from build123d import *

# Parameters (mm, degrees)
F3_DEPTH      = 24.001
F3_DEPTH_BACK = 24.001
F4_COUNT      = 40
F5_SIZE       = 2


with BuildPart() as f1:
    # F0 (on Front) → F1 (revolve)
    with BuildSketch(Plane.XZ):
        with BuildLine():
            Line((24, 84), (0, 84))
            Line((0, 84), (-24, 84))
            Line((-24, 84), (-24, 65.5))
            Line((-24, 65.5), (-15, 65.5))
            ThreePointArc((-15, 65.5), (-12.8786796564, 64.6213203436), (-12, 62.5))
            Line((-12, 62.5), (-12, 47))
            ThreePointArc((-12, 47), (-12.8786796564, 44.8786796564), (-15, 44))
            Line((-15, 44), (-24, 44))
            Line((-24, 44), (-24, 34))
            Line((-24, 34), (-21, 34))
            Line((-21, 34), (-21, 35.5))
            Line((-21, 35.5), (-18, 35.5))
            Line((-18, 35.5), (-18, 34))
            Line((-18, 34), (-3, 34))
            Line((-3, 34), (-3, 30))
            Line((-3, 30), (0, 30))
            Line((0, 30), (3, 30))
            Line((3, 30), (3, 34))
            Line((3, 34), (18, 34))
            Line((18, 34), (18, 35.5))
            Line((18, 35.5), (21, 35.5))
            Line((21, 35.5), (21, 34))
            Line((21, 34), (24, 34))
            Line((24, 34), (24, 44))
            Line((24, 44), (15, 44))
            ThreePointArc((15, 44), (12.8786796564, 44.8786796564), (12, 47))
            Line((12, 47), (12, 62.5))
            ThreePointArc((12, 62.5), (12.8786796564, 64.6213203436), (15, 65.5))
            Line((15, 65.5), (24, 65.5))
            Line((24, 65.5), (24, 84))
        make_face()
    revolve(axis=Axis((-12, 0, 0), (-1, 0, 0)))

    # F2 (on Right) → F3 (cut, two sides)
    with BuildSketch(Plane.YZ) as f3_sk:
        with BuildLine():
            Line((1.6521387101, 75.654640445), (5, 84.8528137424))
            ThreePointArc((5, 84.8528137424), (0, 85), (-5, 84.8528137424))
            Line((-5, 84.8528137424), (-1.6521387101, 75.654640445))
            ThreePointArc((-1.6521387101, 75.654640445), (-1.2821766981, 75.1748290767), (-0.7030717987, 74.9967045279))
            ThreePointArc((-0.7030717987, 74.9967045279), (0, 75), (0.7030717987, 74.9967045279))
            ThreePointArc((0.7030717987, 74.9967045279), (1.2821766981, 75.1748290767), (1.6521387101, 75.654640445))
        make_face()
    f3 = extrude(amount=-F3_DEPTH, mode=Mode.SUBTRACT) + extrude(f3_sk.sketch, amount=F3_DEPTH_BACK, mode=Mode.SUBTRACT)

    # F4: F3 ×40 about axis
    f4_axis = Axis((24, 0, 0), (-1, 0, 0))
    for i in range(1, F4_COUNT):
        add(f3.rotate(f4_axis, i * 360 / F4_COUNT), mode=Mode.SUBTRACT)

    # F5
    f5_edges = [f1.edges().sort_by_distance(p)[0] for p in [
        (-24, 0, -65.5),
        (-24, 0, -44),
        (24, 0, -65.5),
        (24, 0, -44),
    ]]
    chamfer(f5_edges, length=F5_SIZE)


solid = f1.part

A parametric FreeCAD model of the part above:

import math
import FreeCAD as App
import Part
import Sketcher
Q = App.Units.Quantity


def edges_at(feature, points):
    """Names of the edges that pass closest to the given points."""
    edges = feature.Shape.Edges
    near = lambda p: min(range(len(edges)), key=lambda i: edges[i].distToShape(Part.Vertex(*p))[0])
    return sorted({f"Edge{near(p) + 1}" for p in points})

doc = App.newDocument("Part")
body = doc.addObject("PartDesign::Body", "Body")

sketch1 = doc.addObject("Sketcher::SketchObject", "Sketch")
body.addObject(sketch1)
sketch1.AttachmentSupport = (doc.XZ_Plane, [""])
sketch1.MapMode = "FlatFace"
sketch1.addGeometry(Part.LineSegment(App.Vector(24, 84, 0), App.Vector(-24, 84, 0)), False)
sketch1.addGeometry(Part.LineSegment(App.Vector(-24, 84, 0), App.Vector(-24, 65.5, 0)), False)
sketch1.addGeometry(Part.LineSegment(App.Vector(-24, 65.5, 0), App.Vector(-15, 65.5, 0)), False)
sketch1.addGeometry(Part.ArcOfCircle(Part.Circle(App.Vector(-15, 62.5, 0), App.Vector(0, 0, 1), 3), math.radians(0), math.radians(90)), False)
sketch1.addGeometry(Part.LineSegment(App.Vector(-12, 62.5, 0), App.Vector(-12, 47, 0)), False)
sketch1.addGeometry(Part.ArcOfCircle(Part.Circle(App.Vector(-15, 47, 0), App.Vector(0, 0, 1), 3), math.radians(-90), math.radians(0)), False)
sketch1.addGeometry(Part.LineSegment(App.Vector(-15, 44, 0), App.Vector(-24, 44, 0)), False)
sketch1.addGeometry(Part.LineSegment(App.Vector(-24, 44, 0), App.Vector(-24, 34, 0)), False)
sketch1.addGeometry(Part.LineSegment(App.Vector(-24, 34, 0), App.Vector(-21, 34, 0)), False)
sketch1.addGeometry(Part.LineSegment(App.Vector(-21, 34, 0), App.Vector(-21, 35.5, 0)), False)
sketch1.addGeometry(Part.LineSegment(App.Vector(-21, 35.5, 0), App.Vector(-18, 35.5, 0)), False)
sketch1.addGeometry(Part.LineSegment(App.Vector(-18, 35.5, 0), App.Vector(-18, 34, 0)), False)
sketch1.addGeometry(Part.LineSegment(App.Vector(-18, 34, 0), App.Vector(-3, 34, 0)), False)
sketch1.addGeometry(Part.LineSegment(App.Vector(-3, 34, 0), App.Vector(-3, 30, 0)), False)
sketch1.addGeometry(Part.LineSegment(App.Vector(-3, 30, 0), App.Vector(3, 30, 0)), False)
sketch1.addGeometry(Part.LineSegment(App.Vector(3, 30, 0), App.Vector(3, 34, 0)), False)
sketch1.addGeometry(Part.LineSegment(App.Vector(3, 34, 0), App.Vector(18, 34, 0)), False)
sketch1.addGeometry(Part.LineSegment(App.Vector(18, 34, 0), App.Vector(18, 35.5, 0)), False)
sketch1.addGeometry(Part.LineSegment(App.Vector(18, 35.5, 0), App.Vector(21, 35.5, 0)), False)
sketch1.addGeometry(Part.LineSegment(App.Vector(21, 35.5, 0), App.Vector(21, 34, 0)), False)
sketch1.addGeometry(Part.LineSegment(App.Vector(21, 34, 0), App.Vector(24, 34, 0)), False)
sketch1.addGeometry(Part.LineSegment(App.Vector(24, 34, 0), App.Vector(24, 44, 0)), False)
sketch1.addGeometry(Part.LineSegment(App.Vector(24, 44, 0), App.Vector(15, 44, 0)), False)
sketch1.addGeometry(Part.ArcOfCircle(Part.Circle(App.Vector(15, 47, 0), App.Vector(0, 0, 1), 3), math.radians(180), math.radians(270)), False)
sketch1.addGeometry(Part.LineSegment(App.Vector(12, 47, 0), App.Vector(12, 62.5, 0)), False)
sketch1.addGeometry(Part.ArcOfCircle(Part.Circle(App.Vector(15, 62.5, 0), App.Vector(0, 0, 1), 3), math.radians(90), math.radians(180)), False)
sketch1.addGeometry(Part.LineSegment(App.Vector(15, 65.5, 0), App.Vector(24, 65.5, 0)), False)
sketch1.addGeometry(Part.LineSegment(App.Vector(24, 65.5, 0), App.Vector(24, 84, 0)), False)
sketch1.addConstraint(Sketcher.Constraint("Coincident", 0, 2, 1, 1))
sketch1.addConstraint(Sketcher.Constraint("Coincident", 1, 2, 2, 1))
sketch1.addConstraint(Sketcher.Constraint("Tangent", 2, 2, 3, 2))
sketch1.addConstraint(Sketcher.Constraint("Tangent", 3, 1, 4, 1))
sketch1.addConstraint(Sketcher.Constraint("Tangent", 4, 2, 5, 2))
sketch1.addConstraint(Sketcher.Constraint("Tangent", 5, 1, 6, 1))
sketch1.addConstraint(Sketcher.Constraint("Coincident", 6, 2, 7, 1))
sketch1.addConstraint(Sketcher.Constraint("Coincident", 7, 2, 8, 1))
sketch1.addConstraint(Sketcher.Constraint("Coincident", 8, 2, 9, 1))
sketch1.addConstraint(Sketcher.Constraint("Coincident", 9, 2, 10, 1))
sketch1.addConstraint(Sketcher.Constraint("Coincident", 10, 2, 11, 1))
sketch1.addConstraint(Sketcher.Constraint("Coincident", 11, 2, 12, 1))
sketch1.addConstraint(Sketcher.Constraint("Coincident", 12, 2, 13, 1))
sketch1.addConstraint(Sketcher.Constraint("Coincident", 13, 2, 14, 1))
sketch1.addConstraint(Sketcher.Constraint("Coincident", 14, 2, 15, 1))
sketch1.addConstraint(Sketcher.Constraint("Coincident", 15, 2, 16, 1))
sketch1.addConstraint(Sketcher.Constraint("Coincident", 16, 2, 17, 1))
sketch1.addConstraint(Sketcher.Constraint("Coincident", 17, 2, 18, 1))
sketch1.addConstraint(Sketcher.Constraint("Coincident", 18, 2, 19, 1))
sketch1.addConstraint(Sketcher.Constraint("Coincident", 19, 2, 20, 1))
sketch1.addConstraint(Sketcher.Constraint("Coincident", 20, 2, 21, 1))
sketch1.addConstraint(Sketcher.Constraint("Coincident", 21, 2, 22, 1))
sketch1.addConstraint(Sketcher.Constraint("Tangent", 22, 2, 23, 2))
sketch1.addConstraint(Sketcher.Constraint("Tangent", 23, 1, 24, 1))
sketch1.addConstraint(Sketcher.Constraint("Tangent", 24, 2, 25, 2))
sketch1.addConstraint(Sketcher.Constraint("Tangent", 25, 1, 26, 1))
sketch1.addConstraint(Sketcher.Constraint("Coincident", 26, 2, 27, 1))
sketch1.addConstraint(Sketcher.Constraint("Coincident", 27, 2, 0, 1))
sketch1.addConstraint(Sketcher.Constraint("Horizontal", 0))
sketch1.addConstraint(Sketcher.Constraint("Vertical", 1))
sketch1.addConstraint(Sketcher.Constraint("Horizontal", 2))
sketch1.addConstraint(Sketcher.Constraint("Vertical", 4))
sketch1.addConstraint(Sketcher.Constraint("Horizontal", 6))
sketch1.addConstraint(Sketcher.Constraint("Vertical", 7))
sketch1.addConstraint(Sketcher.Constraint("Horizontal", 8))
sketch1.addConstraint(Sketcher.Constraint("Vertical", 9))
sketch1.addConstraint(Sketcher.Constraint("Horizontal", 10))
sketch1.addConstraint(Sketcher.Constraint("Vertical", 11))
sketch1.addConstraint(Sketcher.Constraint("Horizontal", 12))
sketch1.addConstraint(Sketcher.Constraint("Vertical", 13))
sketch1.addConstraint(Sketcher.Constraint("Horizontal", 14))
sketch1.addConstraint(Sketcher.Constraint("Vertical", 15))
sketch1.addConstraint(Sketcher.Constraint("Horizontal", 16))
sketch1.addConstraint(Sketcher.Constraint("Vertical", 17))
sketch1.addConstraint(Sketcher.Constraint("Horizontal", 18))
sketch1.addConstraint(Sketcher.Constraint("Vertical", 19))
sketch1.addConstraint(Sketcher.Constraint("Horizontal", 20))
sketch1.addConstraint(Sketcher.Constraint("Vertical", 21))
sketch1.addConstraint(Sketcher.Constraint("Horizontal", 22))
sketch1.addConstraint(Sketcher.Constraint("Vertical", 24))
sketch1.addConstraint(Sketcher.Constraint("Horizontal", 26))
sketch1.addConstraint(Sketcher.Constraint("Vertical", 27))
sketch1.addConstraint(Sketcher.Constraint("Equal", 3, 5))
sketch1.addConstraint(Sketcher.Constraint("Equal", 5, 23))
sketch1.addConstraint(Sketcher.Constraint("Equal", 23, 25))
sketch1.addConstraint(Sketcher.Constraint("Symmetric", 5, 3, 23, 3, -2))
sketch1.addConstraint(Sketcher.Constraint("Symmetric", 12, 2, 15, 2, -2))
sketch1.addConstraint(Sketcher.Constraint("Symmetric", 10, 2, 17, 2, -2))
sketch1.addConstraint(Sketcher.Constraint("Symmetric", 8, 2, 19, 2, -2))
sketch1.addConstraint(Sketcher.Constraint("Symmetric", 1, 2, 26, 2, -2))
sketch1.addConstraint(Sketcher.Constraint("Horizontal", 8, 2, 11, 2))
sketch1.addConstraint(Sketcher.Constraint("Vertical", 1, 2, 6, 2))
sketch1.addConstraint(Sketcher.Constraint("Vertical", 21, 2, 26, 2))
sketch1.addConstraint(Sketcher.Constraint("Equal", 8, 10))
sketch1.addConstraint(Sketcher.Constraint("Radius", 3, 3.0))
sketch1.addConstraint(Sketcher.Constraint("DistanceX", 0, 2, 0, 1, 48.0))
sketch1.addConstraint(Sketcher.Constraint("DistanceX", 2, 1, 2, 2, 9.0))
sketch1.addConstraint(Sketcher.Constraint("DistanceX", 8, 1, 8, 2, 3.0))
sketch1.addConstraint(Sketcher.Constraint("DistanceX", 12, 1, 12, 2, 15.0))
sketch1.addConstraint(Sketcher.Constraint("DistanceY", 7, 2, 7, 1, 10.0))
sketch1.addConstraint(Sketcher.Constraint("DistanceY", 13, 2, 13, 1, 4.0))
sketch1.addConstraint(Sketcher.Constraint("DistanceY", 1, 2, 1, 1, 18.5))
sketch1.addConstraint(Sketcher.Constraint("DistanceY", 4, 2, 4, 1, 15.5))
sketch1.addConstraint(Sketcher.Constraint("DistanceY", 9, 1, 9, 2, 1.5))
sketch1.addConstraint(Sketcher.Constraint("DistanceY", -1, 1, 5, 3, 47.0))
revolution = doc.addObject("PartDesign::Revolution", "Revolution")
body.addObject(revolution)
revolution.Profile = sketch1
revolution.ReferenceAxis = (sketch1, ["H_Axis"])
revolution.Angle = 360

sketch2 = doc.addObject("Sketcher::SketchObject", "Sketch001")
body.addObject(sketch2)
sketch2.AttachmentSupport = (doc.YZ_Plane, [""])
sketch2.MapMode = "FlatFace"
sketch2.addGeometry(Part.LineSegment(App.Vector(1.7, 75.7, 0), App.Vector(5, 84.9, 0)), False)
sketch2.addGeometry(Part.ArcOfCircle(Part.Circle(App.Vector(0, 0, 0), App.Vector(0, 0, 1), 85), math.radians(86.63), math.radians(93.37)), False)
sketch2.addGeometry(Part.LineSegment(App.Vector(-5, 84.9, 0), App.Vector(-1.7, 75.7, 0)), False)
sketch2.addGeometry(Part.ArcOfCircle(Part.Circle(App.Vector(-0.7, 76, 0), App.Vector(0, 0, 1), 1), math.radians(-160), math.radians(-89)), False)
sketch2.addGeometry(Part.ArcOfCircle(Part.Circle(App.Vector(0, 0, 0), App.Vector(0, 0, 1), 75), math.radians(89.46), math.radians(90.54)), False)
sketch2.addGeometry(Part.ArcOfCircle(Part.Circle(App.Vector(0.7, 76, 0), App.Vector(0, 0, 1), 1), math.radians(-91), math.radians(-20)), False)
sketch2.addConstraint(Sketcher.Constraint("Coincident", 0, 2, 1, 1))
sketch2.addConstraint(Sketcher.Constraint("Coincident", 1, 2, 2, 1))
sketch2.addConstraint(Sketcher.Constraint("Tangent", 2, 2, 3, 1))
sketch2.addConstraint(Sketcher.Constraint("Tangent", 3, 2, 4, 2))
sketch2.addConstraint(Sketcher.Constraint("Tangent", 4, 1, 5, 1))
sketch2.addConstraint(Sketcher.Constraint("Tangent", 5, 2, 0, 1))
sketch2.addConstraint(Sketcher.Constraint("Coincident", 1, 3, -1, 1))
sketch2.addConstraint(Sketcher.Constraint("Coincident", 4, 3, -1, 1))
sketch2.addConstraint(Sketcher.Constraint("Equal", 3, 5))
sketch2.addConstraint(Sketcher.Constraint("Symmetric", 2, 2, 5, 2, -2))
sketch2.addConstraint(Sketcher.Constraint("Radius", 1, 85.0))
sketch2.addConstraint(Sketcher.Constraint("Radius", 3, 1.0))
sketch2.addConstraint(Sketcher.Constraint("Radius", 4, 75.0))
sketch2.addConstraint(Sketcher.Constraint("Angle", 0, Q("70 deg")))
sketch2.addConstraint(Sketcher.Constraint("DistanceX", -1, 1, 0, 2, 5.0))
pocket1 = doc.addObject("PartDesign::Pocket", "Pocket")
body.addObject(pocket1)
pocket1.Profile = sketch2
pocket1.Type = "ThroughAll"
pocket1.Midplane = True
doc.recompute()

polarpattern = doc.addObject("PartDesign::PolarPattern", "PolarPattern")
body.addObject(polarpattern)
polarpattern.Originals = [pocket1]
polarpattern.Axis = (doc.X_Axis, [""])
polarpattern.Angle = 360
polarpattern.Occurrences = 40
body.Tip = polarpattern
doc.recompute()

chamfer = doc.addObject("PartDesign::Chamfer", "Chamfer")
body.addObject(chamfer)
chamfer.Base = (polarpattern, edges_at(polarpattern, [
    (-24, 0, -65.5),
    (-24, 0, -44),
    (24, 0, -65.5),
    (24, 0, -44),
]))
chamfer.Size = 2

doc.recompute()
